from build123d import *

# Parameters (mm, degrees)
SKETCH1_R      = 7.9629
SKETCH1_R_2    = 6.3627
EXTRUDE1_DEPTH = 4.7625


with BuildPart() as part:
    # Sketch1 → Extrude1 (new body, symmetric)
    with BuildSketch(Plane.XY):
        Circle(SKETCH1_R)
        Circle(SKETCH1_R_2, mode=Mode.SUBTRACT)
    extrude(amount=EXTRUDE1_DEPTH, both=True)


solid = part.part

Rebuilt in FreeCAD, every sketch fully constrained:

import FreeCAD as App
import Part
import Sketcher

V = App.Vector
Q = App.Units.Quantity

doc = App.newDocument("Part")
body = doc.addObject("PartDesign::Body", "Body")

sketch1 = body.newObject("Sketcher::SketchObject", "Sketch")
sketch1.AttachmentSupport = (doc.getObject("XY_Plane"), [""])
sketch1.MapMode = "FlatFace"
sketch1.addGeometry([
    Part.Circle(V(0, 0, 0), V(0, 0, 1), 8),
    Part.Circle(V(0, 0, 0), V(0, 0, 1), 6),
], False)
sketch1.addConstraint([
    Sketcher.Constraint("Coincident", 0, 3, -1, 1),
    Sketcher.Constraint("Coincident", 1, 3, -1, 1),
    Sketcher.Constraint("Diameter", 0, Q("0.627 in")),
    Sketcher.Constraint("Diameter", 1, Q("0.501 in")),
])
pad1 = body.newObject("PartDesign::Pad", "Pad")
pad1.Profile = sketch1
pad1.Length = Q("0.375 in")
pad1.Midplane = True

doc.recompute()
